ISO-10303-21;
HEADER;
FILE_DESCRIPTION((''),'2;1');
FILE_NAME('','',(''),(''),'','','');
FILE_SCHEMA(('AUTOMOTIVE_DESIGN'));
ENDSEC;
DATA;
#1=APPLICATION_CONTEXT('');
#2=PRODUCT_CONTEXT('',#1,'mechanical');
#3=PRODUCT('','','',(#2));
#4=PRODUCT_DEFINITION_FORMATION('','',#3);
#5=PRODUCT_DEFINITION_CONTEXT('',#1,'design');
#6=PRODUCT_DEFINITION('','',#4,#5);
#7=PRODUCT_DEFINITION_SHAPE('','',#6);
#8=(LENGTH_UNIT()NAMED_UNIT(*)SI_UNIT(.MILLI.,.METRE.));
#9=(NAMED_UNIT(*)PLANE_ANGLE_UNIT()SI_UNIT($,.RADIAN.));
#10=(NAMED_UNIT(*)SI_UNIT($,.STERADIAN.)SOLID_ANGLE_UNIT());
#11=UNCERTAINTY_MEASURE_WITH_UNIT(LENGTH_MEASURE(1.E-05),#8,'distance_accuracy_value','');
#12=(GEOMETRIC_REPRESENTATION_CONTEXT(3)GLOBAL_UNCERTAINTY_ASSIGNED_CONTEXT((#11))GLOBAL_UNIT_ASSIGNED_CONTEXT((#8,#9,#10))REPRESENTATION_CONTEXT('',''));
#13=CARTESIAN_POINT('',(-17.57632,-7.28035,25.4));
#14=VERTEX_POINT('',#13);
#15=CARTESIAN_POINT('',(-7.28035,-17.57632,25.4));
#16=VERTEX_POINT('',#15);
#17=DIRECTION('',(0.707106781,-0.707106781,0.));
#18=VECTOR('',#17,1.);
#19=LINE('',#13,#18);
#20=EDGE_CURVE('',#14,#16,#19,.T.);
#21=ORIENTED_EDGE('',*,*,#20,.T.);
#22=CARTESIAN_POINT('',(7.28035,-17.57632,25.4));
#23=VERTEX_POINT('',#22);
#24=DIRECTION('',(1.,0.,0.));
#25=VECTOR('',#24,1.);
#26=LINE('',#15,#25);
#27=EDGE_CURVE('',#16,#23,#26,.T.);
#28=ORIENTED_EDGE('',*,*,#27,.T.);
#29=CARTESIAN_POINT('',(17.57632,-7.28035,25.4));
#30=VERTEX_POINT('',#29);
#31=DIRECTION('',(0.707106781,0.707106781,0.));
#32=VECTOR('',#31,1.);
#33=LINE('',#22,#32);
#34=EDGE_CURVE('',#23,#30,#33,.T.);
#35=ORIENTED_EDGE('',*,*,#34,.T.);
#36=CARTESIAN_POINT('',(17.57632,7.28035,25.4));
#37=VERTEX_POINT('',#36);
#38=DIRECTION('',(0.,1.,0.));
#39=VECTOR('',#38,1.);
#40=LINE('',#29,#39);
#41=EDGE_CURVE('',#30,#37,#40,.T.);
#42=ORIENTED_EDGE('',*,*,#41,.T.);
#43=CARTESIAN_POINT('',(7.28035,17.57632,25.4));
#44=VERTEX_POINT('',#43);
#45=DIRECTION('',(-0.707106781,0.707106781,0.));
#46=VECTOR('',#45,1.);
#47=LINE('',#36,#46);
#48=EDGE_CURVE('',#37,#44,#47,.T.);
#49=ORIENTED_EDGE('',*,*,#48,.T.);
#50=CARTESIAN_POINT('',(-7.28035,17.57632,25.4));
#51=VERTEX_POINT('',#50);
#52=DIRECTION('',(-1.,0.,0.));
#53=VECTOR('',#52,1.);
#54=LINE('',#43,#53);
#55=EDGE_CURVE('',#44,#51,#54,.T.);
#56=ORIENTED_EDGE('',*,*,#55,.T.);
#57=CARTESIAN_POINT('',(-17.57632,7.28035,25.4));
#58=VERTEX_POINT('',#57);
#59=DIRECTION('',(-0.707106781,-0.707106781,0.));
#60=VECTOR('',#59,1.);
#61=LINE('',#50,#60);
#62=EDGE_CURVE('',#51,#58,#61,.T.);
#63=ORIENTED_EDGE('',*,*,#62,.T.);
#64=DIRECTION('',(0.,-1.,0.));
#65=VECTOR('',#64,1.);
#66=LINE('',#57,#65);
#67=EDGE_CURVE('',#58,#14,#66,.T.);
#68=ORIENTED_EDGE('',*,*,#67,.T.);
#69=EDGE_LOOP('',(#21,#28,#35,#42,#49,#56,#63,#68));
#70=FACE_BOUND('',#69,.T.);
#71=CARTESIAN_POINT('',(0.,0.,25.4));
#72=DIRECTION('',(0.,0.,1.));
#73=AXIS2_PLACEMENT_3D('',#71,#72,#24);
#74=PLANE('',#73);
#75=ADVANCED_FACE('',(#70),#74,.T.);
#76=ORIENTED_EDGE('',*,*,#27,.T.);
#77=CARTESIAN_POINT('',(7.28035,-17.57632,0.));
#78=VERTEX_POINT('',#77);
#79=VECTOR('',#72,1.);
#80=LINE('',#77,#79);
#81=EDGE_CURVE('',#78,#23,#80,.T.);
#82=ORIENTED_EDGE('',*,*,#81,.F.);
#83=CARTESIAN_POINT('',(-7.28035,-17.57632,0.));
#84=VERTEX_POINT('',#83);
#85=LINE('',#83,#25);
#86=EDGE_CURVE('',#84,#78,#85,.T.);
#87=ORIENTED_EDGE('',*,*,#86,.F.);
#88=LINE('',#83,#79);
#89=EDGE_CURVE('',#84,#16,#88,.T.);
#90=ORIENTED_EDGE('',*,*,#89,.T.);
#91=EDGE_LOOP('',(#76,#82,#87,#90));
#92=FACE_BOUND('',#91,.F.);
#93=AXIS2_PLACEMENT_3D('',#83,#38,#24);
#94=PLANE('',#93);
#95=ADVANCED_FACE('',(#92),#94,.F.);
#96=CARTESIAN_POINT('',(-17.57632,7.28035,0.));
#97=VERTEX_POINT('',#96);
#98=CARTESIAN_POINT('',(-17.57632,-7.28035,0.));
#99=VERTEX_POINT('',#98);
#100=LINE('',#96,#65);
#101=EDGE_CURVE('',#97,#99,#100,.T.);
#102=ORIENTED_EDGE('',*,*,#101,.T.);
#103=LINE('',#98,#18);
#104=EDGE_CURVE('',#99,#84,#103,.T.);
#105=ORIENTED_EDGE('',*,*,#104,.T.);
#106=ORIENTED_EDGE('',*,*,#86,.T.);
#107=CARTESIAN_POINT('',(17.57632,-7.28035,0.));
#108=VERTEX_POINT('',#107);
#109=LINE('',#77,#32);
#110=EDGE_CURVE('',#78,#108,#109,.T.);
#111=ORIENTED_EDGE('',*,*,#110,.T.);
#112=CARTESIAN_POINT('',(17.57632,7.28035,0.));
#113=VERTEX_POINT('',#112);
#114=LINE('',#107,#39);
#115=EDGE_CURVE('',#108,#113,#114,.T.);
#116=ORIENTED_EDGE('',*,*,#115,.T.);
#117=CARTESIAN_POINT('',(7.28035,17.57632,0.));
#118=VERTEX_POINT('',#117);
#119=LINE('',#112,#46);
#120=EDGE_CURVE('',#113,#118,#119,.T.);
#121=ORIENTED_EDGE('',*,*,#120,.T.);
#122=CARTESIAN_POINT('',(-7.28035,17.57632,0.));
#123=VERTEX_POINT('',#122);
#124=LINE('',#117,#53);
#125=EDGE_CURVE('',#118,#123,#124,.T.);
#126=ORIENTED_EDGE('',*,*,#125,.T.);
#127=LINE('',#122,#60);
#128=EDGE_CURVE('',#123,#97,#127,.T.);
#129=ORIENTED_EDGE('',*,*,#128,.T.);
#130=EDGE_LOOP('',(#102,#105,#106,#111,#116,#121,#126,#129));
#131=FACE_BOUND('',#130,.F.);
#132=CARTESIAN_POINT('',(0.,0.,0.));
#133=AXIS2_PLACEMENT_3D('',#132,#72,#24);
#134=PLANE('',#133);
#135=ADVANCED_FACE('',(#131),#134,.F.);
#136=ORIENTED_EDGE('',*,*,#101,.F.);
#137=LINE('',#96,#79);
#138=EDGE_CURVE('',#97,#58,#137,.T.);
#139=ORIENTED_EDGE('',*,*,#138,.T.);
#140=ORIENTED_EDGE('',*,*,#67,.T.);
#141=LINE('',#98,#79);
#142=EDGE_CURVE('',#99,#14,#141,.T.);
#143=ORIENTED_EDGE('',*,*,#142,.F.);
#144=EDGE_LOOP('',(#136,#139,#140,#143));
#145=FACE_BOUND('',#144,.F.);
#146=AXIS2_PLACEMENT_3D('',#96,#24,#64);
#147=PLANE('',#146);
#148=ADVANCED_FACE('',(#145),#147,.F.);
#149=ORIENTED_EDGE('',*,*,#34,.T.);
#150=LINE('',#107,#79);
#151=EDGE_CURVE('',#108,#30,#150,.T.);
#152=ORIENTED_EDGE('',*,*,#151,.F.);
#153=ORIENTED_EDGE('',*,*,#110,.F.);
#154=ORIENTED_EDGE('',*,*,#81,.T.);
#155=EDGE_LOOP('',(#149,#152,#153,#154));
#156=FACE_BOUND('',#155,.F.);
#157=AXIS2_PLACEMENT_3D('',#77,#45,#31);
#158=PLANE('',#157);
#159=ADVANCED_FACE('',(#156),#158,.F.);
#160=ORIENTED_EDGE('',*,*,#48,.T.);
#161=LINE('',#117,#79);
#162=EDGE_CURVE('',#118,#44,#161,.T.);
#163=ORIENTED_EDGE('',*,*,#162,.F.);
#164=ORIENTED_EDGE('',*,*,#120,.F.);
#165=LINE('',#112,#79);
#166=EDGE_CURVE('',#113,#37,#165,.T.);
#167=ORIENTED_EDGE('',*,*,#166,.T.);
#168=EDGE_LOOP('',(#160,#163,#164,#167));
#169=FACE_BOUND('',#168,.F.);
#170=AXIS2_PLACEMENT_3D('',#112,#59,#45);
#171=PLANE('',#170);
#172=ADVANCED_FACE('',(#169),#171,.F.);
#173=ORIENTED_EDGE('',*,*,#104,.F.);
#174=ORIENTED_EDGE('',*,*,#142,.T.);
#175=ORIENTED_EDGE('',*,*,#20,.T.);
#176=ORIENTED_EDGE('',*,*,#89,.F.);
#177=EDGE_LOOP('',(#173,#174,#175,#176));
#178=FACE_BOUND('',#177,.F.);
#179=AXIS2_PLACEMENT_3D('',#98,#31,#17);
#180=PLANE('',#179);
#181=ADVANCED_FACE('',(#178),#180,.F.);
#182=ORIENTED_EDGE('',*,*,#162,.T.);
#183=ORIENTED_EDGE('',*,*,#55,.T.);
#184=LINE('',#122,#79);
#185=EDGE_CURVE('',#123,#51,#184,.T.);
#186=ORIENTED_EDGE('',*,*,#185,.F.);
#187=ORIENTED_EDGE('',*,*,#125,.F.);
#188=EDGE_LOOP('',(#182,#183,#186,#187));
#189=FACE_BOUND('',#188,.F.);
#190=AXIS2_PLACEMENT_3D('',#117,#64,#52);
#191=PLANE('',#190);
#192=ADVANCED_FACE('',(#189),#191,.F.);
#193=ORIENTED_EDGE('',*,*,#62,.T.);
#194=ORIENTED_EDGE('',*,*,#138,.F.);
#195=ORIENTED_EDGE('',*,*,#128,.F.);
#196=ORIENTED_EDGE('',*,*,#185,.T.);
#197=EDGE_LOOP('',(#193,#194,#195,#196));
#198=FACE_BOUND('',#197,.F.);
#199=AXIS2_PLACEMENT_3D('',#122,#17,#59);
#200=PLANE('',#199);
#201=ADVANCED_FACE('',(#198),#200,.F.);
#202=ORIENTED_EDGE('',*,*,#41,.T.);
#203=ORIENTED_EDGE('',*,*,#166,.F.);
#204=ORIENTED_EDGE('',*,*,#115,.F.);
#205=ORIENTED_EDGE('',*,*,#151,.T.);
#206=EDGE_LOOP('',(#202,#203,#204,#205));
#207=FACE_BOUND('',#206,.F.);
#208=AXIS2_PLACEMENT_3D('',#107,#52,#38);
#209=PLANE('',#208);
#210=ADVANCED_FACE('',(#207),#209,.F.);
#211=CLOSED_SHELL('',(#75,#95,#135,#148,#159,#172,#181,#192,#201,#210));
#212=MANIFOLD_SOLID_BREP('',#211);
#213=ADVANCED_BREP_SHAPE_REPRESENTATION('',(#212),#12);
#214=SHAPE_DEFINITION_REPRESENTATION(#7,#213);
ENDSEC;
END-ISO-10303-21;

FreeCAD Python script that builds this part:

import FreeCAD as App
import Part
import Sketcher
Q = App.Units.Quantity


def add_polygon(sketch, points):
    """Adds a closed chain of lines whose ends are joined by coincident constraints."""
    first, n = sketch.GeometryCount, len(points)
    for a, b in zip(points, points[1:] + points[:1]):
        sketch.addGeometry(Part.LineSegment(App.Vector(*a, 0), App.Vector(*b, 0)), False)
    for i in range(n):
        sketch.addConstraint(Sketcher.Constraint("Coincident", first + i, 2, first + (i + 1) % n, 1))

doc = App.newDocument("Part")
body = doc.addObject("PartDesign::Body", "Body")

sketch1 = body.newObject("Sketcher::SketchObject", "Sketch")
sketch1.AttachmentSupport = (doc.getObject("XY_Plane"), [""])
sketch1.MapMode = "FlatFace"
add_polygon(sketch1, [(18, -7), (18, 7), (7, 18), (-7, 18), (-18, 7), (-18, -7), (-7, -18), (7, -18)])
sketch1.addConstraint([
    Sketcher.Constraint("Vertical", 0),
    Sketcher.Constraint("Horizontal", 2),
    Sketcher.Constraint("Vertical", 4),
    Sketcher.Constraint("Horizontal", 6),
    Sketcher.Constraint("Symmetric", 0, 2, 4, 2, -1, 1),
    Sketcher.Constraint("Symmetric", 1, 2, 5, 2, -1, 1),
    Sketcher.Constraint("Perpendicular", 1, 3),
    Sketcher.Constraint("Perpendicular", 5, 7),
    Sketcher.Constraint("Horizontal", 0, 2, 3, 2),
    Sketcher.Constraint("Horizontal", 4, 2, 7, 2),
    Sketcher.Constraint("Vertical", 2, 2, 5, 2),
    Sketcher.Constraint("Equal", 6, 0),
    Sketcher.Constraint("DistanceX", 2, 2, 2, 1, 14.5607),
    Sketcher.Constraint("Distance", 1, 14.5607),
])
pad1 = body.newObject("PartDesign::Pad", "Pad")
pad1.Profile = sketch1
pad1.Length = Q("1 in")

sketch2 = body.newObject("Sketcher::SketchObject", "Sketch001")
sketch2.AttachmentSupport = (doc.getObject("XY_Plane"), [""])
sketch2.MapMode = "FlatFace"
add_polygon(sketch2, [(14, -1), (9, 11), (-2, 14), (-12, 7), (-13, -6), (-4, -14), (8, -11)])
sketch2.addConstraint([
    Sketcher.Constraint("Equal", 0, 1),
    Sketcher.Constraint("Equal", 1, 2),
    Sketcher.Constraint("Equal", 2, 3),
    Sketcher.Constraint("Equal", 3, 4),
    Sketcher.Constraint("Equal", 4, 5),
    Sketcher.Constraint("Equal", 5, 6),
    Sketcher.Constraint("DistanceX", -1, 1, 5, 2, Q("0.3255998 in")),
    Sketcher.Constraint("DistanceY", 3, 2, 1, 2, Q("0.7656998 in")),
    Sketcher.Constraint("DistanceX", 3, 2, 1, 2, 10.580901),
    Sketcher.Constraint("DistanceY", 3, 2, 6, 2, 4.8054),
    Sketcher.Constraint("Distance", 0, 12.287158),
    Sketcher.Constraint("DistanceX", -1, 1, 0, 2, 9.36479),
    Sketcher.Constraint("DistanceX", 1, 2, -1, 1, 2.46449),
    Sketcher.Constraint("DistanceY", -1, 1, 1, 2, 13.943381),
])
pad2 = body.newObject("PartDesign::Pad", "Pad001")
pad2.Profile = sketch2
pad2.Length = Q("1 in")

doc.recompute()
